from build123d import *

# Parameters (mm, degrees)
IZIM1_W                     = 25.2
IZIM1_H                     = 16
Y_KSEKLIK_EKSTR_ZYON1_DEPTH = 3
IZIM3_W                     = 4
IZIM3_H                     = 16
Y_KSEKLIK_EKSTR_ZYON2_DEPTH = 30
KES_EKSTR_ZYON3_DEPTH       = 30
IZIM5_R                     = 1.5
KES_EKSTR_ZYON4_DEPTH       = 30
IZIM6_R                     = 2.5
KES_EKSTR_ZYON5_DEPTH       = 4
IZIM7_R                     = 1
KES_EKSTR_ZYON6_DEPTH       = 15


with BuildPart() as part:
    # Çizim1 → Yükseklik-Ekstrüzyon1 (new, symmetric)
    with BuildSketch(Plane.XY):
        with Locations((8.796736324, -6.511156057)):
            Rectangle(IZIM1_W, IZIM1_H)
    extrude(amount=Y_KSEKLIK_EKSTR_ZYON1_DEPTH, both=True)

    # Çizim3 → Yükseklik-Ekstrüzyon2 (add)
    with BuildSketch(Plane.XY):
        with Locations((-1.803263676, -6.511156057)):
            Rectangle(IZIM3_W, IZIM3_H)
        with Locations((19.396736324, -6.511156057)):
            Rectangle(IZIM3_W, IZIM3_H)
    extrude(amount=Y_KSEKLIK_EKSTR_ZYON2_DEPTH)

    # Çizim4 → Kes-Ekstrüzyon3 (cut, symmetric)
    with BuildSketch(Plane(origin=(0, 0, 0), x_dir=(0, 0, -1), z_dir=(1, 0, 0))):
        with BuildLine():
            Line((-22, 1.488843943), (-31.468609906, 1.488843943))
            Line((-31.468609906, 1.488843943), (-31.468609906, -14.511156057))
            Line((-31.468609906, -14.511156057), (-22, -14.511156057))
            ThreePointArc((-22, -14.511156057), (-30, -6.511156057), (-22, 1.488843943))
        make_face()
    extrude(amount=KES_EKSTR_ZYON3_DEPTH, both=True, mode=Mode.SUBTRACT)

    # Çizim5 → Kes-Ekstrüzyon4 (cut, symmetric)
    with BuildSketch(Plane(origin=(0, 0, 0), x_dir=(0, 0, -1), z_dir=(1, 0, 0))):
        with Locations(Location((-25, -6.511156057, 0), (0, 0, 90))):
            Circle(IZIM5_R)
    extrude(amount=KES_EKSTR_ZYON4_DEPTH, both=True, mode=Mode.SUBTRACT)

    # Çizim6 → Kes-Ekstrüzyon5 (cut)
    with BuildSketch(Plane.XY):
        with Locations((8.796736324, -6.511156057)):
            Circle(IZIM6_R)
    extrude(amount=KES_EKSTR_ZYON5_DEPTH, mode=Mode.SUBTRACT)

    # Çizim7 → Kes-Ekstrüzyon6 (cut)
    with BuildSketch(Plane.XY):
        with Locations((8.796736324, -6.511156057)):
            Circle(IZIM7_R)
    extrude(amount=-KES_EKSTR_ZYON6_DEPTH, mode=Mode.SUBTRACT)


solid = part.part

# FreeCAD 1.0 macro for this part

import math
import FreeCAD as App
import Part
import Sketcher

V = App.Vector
Q = App.Units.Quantity


def add_polygon(sketch, points):
    """Adds a closed chain of lines whose ends are joined by coincident constraints."""
    first, n = sketch.GeometryCount, len(points)
    for a, b in zip(points, points[1:] + points[:1]):
        sketch.addGeometry(Part.LineSegment(App.Vector(*a, 0), App.Vector(*b, 0)), False)
    for i in range(n):
        sketch.addConstraint(Sketcher.Constraint("Coincident", first + i, 2, first + (i + 1) % n, 1))

doc = App.newDocument("Part")
params = doc.addObject("Spreadsheet::Sheet", "Params")
for row, (alias, value) in enumerate([
    ("sketch1_height", "16 mm"),
    ("sketch1_width", "25.2 mm"),
    ("pad1_length", "6 mm"),
    ("sketch2_width", "4 mm"),
    ("sketch2_height", "16 mm"),
    ("pad2_length", "30 mm"),
    ("sketch3_radius", "8 mm"),
    ("pocket1_length", "60 mm"),
    ("sketch4_diameter", "3 mm"),
    ("pocket2_length", "60 mm"),
    ("sketch5_diameter", "5 mm"),
    ("pocket3_length", "4 mm"),
    ("sketch6_diameter", "2 mm"),
    ("pocket4_length", "15 mm"),
], start=1):
    params.set(f"A{row}", alias)
    params.set(f"B{row}", "=" + value)
    params.setAlias(f"B{row}", alias)

body = doc.addObject("PartDesign::Body", "Body")

sketch1 = body.newObject("Sketcher::SketchObject", "Sketch")
sketch1.AttachmentSupport = (doc.getObject("XY_Plane"), [""])
sketch1.MapMode = "FlatFace"
add_polygon(sketch1, [(-4, 1), (-4, -15), (21, -15), (21, 1)])
sketch1.addConstraint([
    Sketcher.Constraint("Vertical", 0),
    Sketcher.Constraint("Horizontal", 1),
    Sketcher.Constraint("Vertical", 2),
    Sketcher.Constraint("Horizontal", 3),
    Sketcher.Constraint("DistanceY", 0, 2, 0, 1, Q("16 mm")),
    Sketcher.Constraint("DistanceX", 1, 1, 1, 2, Q("25.2 mm")),
    Sketcher.Constraint("DistanceX", 0, 2, -1, 1, Q("3.803264 mm")),
    Sketcher.Constraint("DistanceY", 0, 2, -1, 1, Q("14.511156 mm")),
])
sketch1.setExpression("Constraints[8]", "Params.sketch1_height")
sketch1.setExpression("Constraints[9]", "Params.sketch1_width")
pad1 = body.newObject("PartDesign::Pad", "Pad")
pad1.Profile = sketch1
pad1.setExpression("Length", "Params.pad1_length")
pad1.Midplane = True

sketch2 = body.newObject("Sketcher::SketchObject", "Sketch001")
sketch2.AttachmentSupport = (doc.getObject("XY_Plane"), [""])
sketch2.MapMode = "FlatFace"
add_polygon(sketch2, [(-3.8, 1.5), (-3.8, -14.5), (0.2, -14.5), (0.2, 1.5)])
add_polygon(sketch2, [(17.4, 1.5), (17.4, -14.5), (21.4, -14.5), (21.4, 1.5)])
sketch2.addConstraint([
    Sketcher.Constraint("Vertical", 0),
    Sketcher.Constraint("Horizontal", 1),
    Sketcher.Constraint("Vertical", 2),
    Sketcher.Constraint("Horizontal", 3),
    Sketcher.Constraint("Vertical", 4),
    Sketcher.Constraint("Horizontal", 5),
    Sketcher.Constraint("Vertical", 6),
    Sketcher.Constraint("Horizontal", 7),
    Sketcher.Constraint("Horizontal", 1, 2, 4, 2),
    Sketcher.Constraint("Horizontal", 3, 2, 6, 2),
    Sketcher.Constraint("Equal", 3, 5),
    Sketcher.Constraint("DistanceX", 1, 1, 1, 2, Q("4 mm")),
    Sketcher.Constraint("DistanceY", 0, 2, 0, 1, Q("16 mm")),
    Sketcher.Constraint("DistanceX", 1, 2, 4, 2, Q("17.2 mm")),
    Sketcher.Constraint("DistanceX", 0, 2, -1, 1, Q("3.803264 mm")),
    Sketcher.Constraint("DistanceY", 0, 2, -1, 1, Q("14.511156 mm")),
])
sketch2.setExpression("Constraints[19]", "Params.sketch2_width")
sketch2.setExpression("Constraints[20]", "Params.sketch2_height")
pad2 = body.newObject("PartDesign::Pad", "Pad001")
pad2.Profile = sketch2
pad2.setExpression("Length", "Params.pad2_length")

sketch3 = body.newObject("Sketcher::SketchObject", "Sketch002")
sketch3.AttachmentSupport = (doc.getObject("YZ_Plane"), [""])
sketch3.MapMode = "FlatFace"
sketch3.addGeometry([
    Part.LineSegment(V(1, 22, 0), V(1, 31, 0)),
    Part.LineSegment(V(1, 31, 0), V(-15, 31, 0)),
    Part.LineSegment(V(-15, 31, 0), V(-15, 22, 0)),
    Part.ArcOfCircle(Part.Circle(V(-7, 22, 0), V(0, 0, 1), 8), math.radians(0), math.radians(180)),
], False)
sketch3.addConstraint([
    Sketcher.Constraint("Coincident", 0, 2, 1, 1),
    Sketcher.Constraint("Coincident", 1, 2, 2, 1),
    Sketcher.Constraint("Tangent", 2, 2, 3, 2),
    Sketcher.Constraint("Tangent", 3, 1, 0, 1),
    Sketcher.Constraint("Vertical", 0),
    Sketcher.Constraint("Horizontal", 1),
    Sketcher.Constraint("Vertical", 2),
    Sketcher.Constraint("Radius", 3, Q("8 mm")),
    Sketcher.Constraint("DistanceY", -1, 1, 3, 3, Q("22 mm")),
    Sketcher.Constraint("DistanceY", 0, 1, 0, 2, Q("9.46861 mm")),
    Sketcher.Constraint("DistanceX", 3, 3, -1, 1, Q("6.511156 mm")),
])
sketch3.setExpression("Constraints[7]", "Params.sketch3_radius")
pocket1 = body.newObject("PartDesign::Pocket", "Pocket")
pocket1.Profile = sketch3
pocket1.setExpression("Length", "Params.pocket1_length")
pocket1.Midplane = True

sketch4 = body.newObject("Sketcher::SketchObject", "Sketch003")
sketch4.AttachmentSupport = (doc.getObject("YZ_Plane"), [""])
sketch4.MapMode = "FlatFace"
sketch4.addGeometry(Part.Circle(V(-6.5, 25, 0), V(0, 0, 1), 1.5), False)
sketch4.addConstraint([
    Sketcher.Constraint("Diameter", 0, Q("3 mm")),
    Sketcher.Constraint("DistanceY", -1, 1, 0, 3, Q("25 mm")),
    Sketcher.Constraint("DistanceX", 0, 3, -1, 1, Q("6.511156 mm")),
])
sketch4.setExpression("Constraints[0]", "Params.sketch4_diameter")
pocket2 = body.newObject("PartDesign::Pocket", "Pocket001")
pocket2.Profile = sketch4
pocket2.setExpression("Length", "Params.pocket2_length")
pocket2.Midplane = True

sketch5 = body.newObject("Sketcher::SketchObject", "Sketch004")
sketch5.AttachmentSupport = (doc.getObject("XY_Plane"), [""])
sketch5.MapMode = "FlatFace"
sketch5.addGeometry(Part.Circle(V(8.8, -6.5, 0), V(0, 0, 1), 2.5), False)
sketch5.addConstraint([
    Sketcher.Constraint("Diameter", 0, Q("5 mm")),
    Sketcher.Constraint("DistanceX", -1, 1, 0, 3, Q("8.796736 mm")),
    Sketcher.Constraint("DistanceY", 0, 3, -1, 1, Q("6.511156 mm")),
])
sketch5.setExpression("Constraints[0]", "Params.sketch5_diameter")
pocket3 = body.newObject("PartDesign::Pocket", "Pocket002")
pocket3.Profile = sketch5
pocket3.setExpression("Length", "Params.pocket3_length")
pocket3.Reversed = True

sketch6 = body.newObject("Sketcher::SketchObject", "Sketch005")
sketch6.AttachmentSupport = (doc.getObject("XY_Plane"), [""])
sketch6.MapMode = "FlatFace"
sketch6.addGeometry(Part.Circle(V(8.8, -6.5, 0), V(0, 0, 1), 1), False)
sketch6.addConstraint([
    Sketcher.Constraint("Diameter", 0, Q("2 mm")),
    Sketcher.Constraint("DistanceX", -1, 1, 0, 3, Q("8.796736 mm")),
    Sketcher.Constraint("DistanceY", 0, 3, -1, 1, Q("6.511156 mm")),
])
sketch6.setExpression("Constraints[0]", "Params.sketch6_diameter")
pocket4 = body.newObject("PartDesign::Pocket", "Pocket003")
pocket4.Profile = sketch6
pocket4.setExpression("Length", "Params.pocket4_length")

doc.recompute()
